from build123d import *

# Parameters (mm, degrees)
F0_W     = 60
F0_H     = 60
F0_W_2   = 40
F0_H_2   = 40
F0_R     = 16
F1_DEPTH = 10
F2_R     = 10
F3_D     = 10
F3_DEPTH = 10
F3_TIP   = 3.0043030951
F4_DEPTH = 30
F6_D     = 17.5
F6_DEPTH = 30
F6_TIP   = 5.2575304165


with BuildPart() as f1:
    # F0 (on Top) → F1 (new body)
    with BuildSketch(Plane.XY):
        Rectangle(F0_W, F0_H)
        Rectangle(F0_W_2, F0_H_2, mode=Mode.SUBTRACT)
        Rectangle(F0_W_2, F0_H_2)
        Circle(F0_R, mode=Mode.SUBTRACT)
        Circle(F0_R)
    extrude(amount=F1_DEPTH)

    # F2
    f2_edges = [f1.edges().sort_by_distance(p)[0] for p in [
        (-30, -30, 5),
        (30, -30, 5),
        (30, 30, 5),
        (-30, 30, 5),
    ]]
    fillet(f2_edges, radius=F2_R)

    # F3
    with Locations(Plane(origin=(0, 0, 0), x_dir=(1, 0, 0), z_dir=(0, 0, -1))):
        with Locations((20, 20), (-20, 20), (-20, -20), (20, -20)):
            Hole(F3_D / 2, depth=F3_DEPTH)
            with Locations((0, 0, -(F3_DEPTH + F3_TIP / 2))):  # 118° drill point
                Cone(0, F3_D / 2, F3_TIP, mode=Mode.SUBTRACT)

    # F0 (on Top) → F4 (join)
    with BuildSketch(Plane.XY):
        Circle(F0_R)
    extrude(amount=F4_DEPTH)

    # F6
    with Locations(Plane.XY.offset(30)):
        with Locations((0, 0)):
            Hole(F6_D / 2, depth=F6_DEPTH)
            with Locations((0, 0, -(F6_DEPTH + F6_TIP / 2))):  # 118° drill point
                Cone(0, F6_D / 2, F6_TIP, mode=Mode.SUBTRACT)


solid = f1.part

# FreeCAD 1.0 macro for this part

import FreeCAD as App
import Part
import Sketcher

V = App.Vector


def edges_at(feature, points):
    """Names of the edges that pass closest to the given points."""
    edges = feature.Shape.Edges
    near = lambda p: min(range(len(edges)), key=lambda i: edges[i].distToShape(Part.Vertex(*p))[0])
    return sorted({f"Edge{near(p) + 1}" for p in points})


def add_polygon(sketch, points):
    """Adds a closed chain of lines whose ends are joined by coincident constraints."""
    first, n = sketch.GeometryCount, len(points)
    for a, b in zip(points, points[1:] + points[:1]):
        sketch.addGeometry(Part.LineSegment(App.Vector(*a, 0), App.Vector(*b, 0)), False)
    for i in range(n):
        sketch.addConstraint(Sketcher.Constraint("Coincident", first + i, 2, first + (i + 1) % n, 1))

doc = App.newDocument("Part")
body = doc.addObject("PartDesign::Body", "Body")

# Sketch on XY plane
sketch1 = doc.addObject("Sketcher::SketchObject", "Sketch")
body.addObject(sketch1)
sketch1.AttachmentSupport = (doc.XY_Plane, [""])
sketch1.MapMode = "FlatFace"
add_polygon(sketch1, [(-30, 30), (-30, -30), (30, -30), (30, 30)])  # lines 0-3
sketch1.addConstraint([
    Sketcher.Constraint("Vertical", 0),
    Sketcher.Constraint("Horizontal", 1),
    Sketcher.Constraint("Vertical", 2),
    Sketcher.Constraint("Horizontal", 3),
    Sketcher.Constraint("Symmetric", 0, 2, 2, 2, -1, 1),
    Sketcher.Constraint("Equal", 3, 0),
    Sketcher.Constraint("DistanceX", 1, 1, 1, 2, 60.0),
])
pad1 = doc.addObject("PartDesign::Pad", "Pad")
body.addObject(pad1)
pad1.Profile = sketch1
pad1.Length = 10
doc.recompute()

fillet = doc.addObject("PartDesign::Fillet", "Fillet")
body.addObject(fillet)
fillet.Base = (pad1, edges_at(pad1, [
    (-30, -30, 5),
    (30, -30, 5),
    (30, 30, 5),
    (-30, 30, 5),
]))
fillet.Radius = 10

# Sketch on XY plane
sketch2 = doc.addObject("Sketcher::SketchObject", "Sketch001")
body.addObject(sketch2)
sketch2.AttachmentSupport = (doc.XY_Plane, [""])
sketch2.MapMode = "FlatFace"
sketch2.addGeometry([
    Part.Circle(V(20, -20, 0), V(0, 0, 1), 5),
    Part.Circle(V(-20, -20, 0), V(0, 0, 1), 5),
    Part.Circle(V(-20, 20, 0), V(0, 0, 1), 5),
    Part.Circle(V(20, 20, 0), V(0, 0, 1), 5),
], False)
sketch2.addConstraint([
    Sketcher.Constraint("Equal", 0, 1),
    Sketcher.Constraint("Equal", 1, 2),
    Sketcher.Constraint("Equal", 2, 3),
    Sketcher.Constraint("Symmetric", 0, 3, 2, 3, -1, 1),
    Sketcher.Constraint("Symmetric", 1, 3, 3, 3, -1, 1),
    Sketcher.Constraint("Symmetric", 0, 3, 1, 3, -2),
    Sketcher.Constraint("Diameter", 0, 10.0),
    Sketcher.Constraint("DistanceX", -1, 1, 0, 3, 20.0),
    Sketcher.Constraint("DistanceY", 0, 3, -1, 1, 20.0),
])
doc.recompute()
hole = doc.addObject("PartDesign::Hole", "Hole")
body.addObject(hole)
hole.Profile = sketch2
hole.ThreadType = "None"
hole.Diameter = 10
hole.DepthType = "Dimension"
hole.Depth = 10
hole.DrillPoint = "Angled"
hole.DrillPointAngle = 118
hole.Reversed = True

# Sketch on XY plane
sketch3 = doc.addObject("Sketcher::SketchObject", "Sketch002")
body.addObject(sketch3)
sketch3.AttachmentSupport = (doc.XY_Plane, [""])
sketch3.MapMode = "FlatFace"
sketch3.addGeometry(Part.Circle(V(0, 0, 0), V(0, 0, 1), 16), False)
sketch3.addConstraint([
    Sketcher.Constraint("Coincident", 0, 3, -1, 1),
    Sketcher.Constraint("Diameter", 0, 32.0),
])
pad2 = doc.addObject("PartDesign::Pad", "Pad001")
body.addObject(pad2)
pad2.Profile = sketch3
pad2.Length = 30

# Sketch on XY plane
sketch4 = doc.addObject("Sketcher::SketchObject", "Sketch003")
body.addObject(sketch4)
sketch4.AttachmentSupport = (doc.XY_Plane, [""])
sketch4.MapMode = "FlatFace"
sketch4.AttachmentOffset = App.Placement(V(0, 0, 30), App.Rotation())
sketch4.addGeometry(Part.Circle(V(0, 0, 0), V(0, 0, 1), 8.75), False)
sketch4.addConstraint([
    Sketcher.Constraint("Coincident", 0, 3, -1, 1),
    Sketcher.Constraint("Diameter", 0, 17.5),
])
doc.recompute()
hole2 = doc.addObject("PartDesign::Hole", "Hole001")
body.addObject(hole2)
hole2.Profile = sketch4
hole2.ThreadType = "None"
hole2.Diameter = 17.5
hole2.DepthType = "Dimension"
hole2.Depth = 30
hole2.DrillPoint = "Angled"
hole2.DrillPointAngle = 118

doc.recompute()
